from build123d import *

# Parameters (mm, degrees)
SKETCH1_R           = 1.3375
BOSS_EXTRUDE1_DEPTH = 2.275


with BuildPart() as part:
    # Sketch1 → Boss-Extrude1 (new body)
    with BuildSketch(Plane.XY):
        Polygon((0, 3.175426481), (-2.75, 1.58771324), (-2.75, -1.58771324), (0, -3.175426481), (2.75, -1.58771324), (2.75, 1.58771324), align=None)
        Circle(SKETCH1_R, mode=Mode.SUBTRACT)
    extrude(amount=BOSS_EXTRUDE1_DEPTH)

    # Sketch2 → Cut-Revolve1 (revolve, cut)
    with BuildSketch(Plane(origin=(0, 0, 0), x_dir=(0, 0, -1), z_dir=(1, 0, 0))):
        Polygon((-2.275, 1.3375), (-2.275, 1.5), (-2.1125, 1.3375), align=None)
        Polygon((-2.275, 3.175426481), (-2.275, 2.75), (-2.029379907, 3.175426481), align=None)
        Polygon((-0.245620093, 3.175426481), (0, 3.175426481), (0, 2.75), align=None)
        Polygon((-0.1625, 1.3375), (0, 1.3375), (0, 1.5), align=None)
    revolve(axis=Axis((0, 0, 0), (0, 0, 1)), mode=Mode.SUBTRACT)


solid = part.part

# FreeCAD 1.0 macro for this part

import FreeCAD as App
import Part
import Sketcher
from FreeCAD import Vector
Q = App.Units.Quantity

doc = App.newDocument("Part")
params = doc.addObject("Spreadsheet::Sheet", "Params")
for row, (alias, value) in enumerate([
    ("pad1_length", "2.275 mm"),
    ("groove_angle", "360 deg"),
], start=1):
    params.set(f"A{row}", alias)
    params.set(f"B{row}", "=" + value)
    params.setAlias(f"B{row}", alias)

body = doc.addObject("PartDesign::Body", "Body")

# Sketch on XY plane
sketch1 = doc.addObject("Sketcher::SketchObject", "Sketch")
body.addObject(sketch1)
sketch1.AttachmentSupport = (doc.XY_Plane, [""])
sketch1.MapMode = "FlatFace"
sketch1.addGeometry([
    Part.LineSegment(Vector(0, 3.2, 0), Vector(-2.8, 1.6, 0)),  # 0
    Part.LineSegment(Vector(-2.8, 1.6, 0), Vector(-2.8, -1.6, 0)),  # 1
    Part.LineSegment(Vector(-2.8, -1.6, 0), Vector(0, -3.2, 0)),  # 2
    Part.LineSegment(Vector(0, -3.2, 0), Vector(2.8, -1.6, 0)),  # 3
    Part.LineSegment(Vector(2.8, -1.6, 0), Vector(2.8, 1.6, 0)),  # 4
    Part.LineSegment(Vector(2.8, 1.6, 0), Vector(0, 3.2, 0)),  # 5
    Part.Circle(Vector(0, 0, 0), Vector(0, 0, 1), 1.3),  # 6
], False)
sketch1.addConstraint([
    Sketcher.Constraint("Coincident", 0, 2, 1, 1),
    Sketcher.Constraint("Coincident", 1, 2, 2, 1),
    Sketcher.Constraint("Coincident", 2, 2, 3, 1),
    Sketcher.Constraint("Coincident", 3, 2, 4, 1),
    Sketcher.Constraint("Coincident", 4, 2, 5, 1),
    Sketcher.Constraint("Coincident", 5, 2, 0, 1),
    Sketcher.Constraint("Vertical", 1),
    Sketcher.Constraint("Vertical", 4),
    Sketcher.Constraint("Coincident", 6, 3, -1, 1),
    Sketcher.Constraint("Symmetric", 0, 2, 3, 2, -1, 1),
    Sketcher.Constraint("Symmetric", 2, 2, 5, 2, -1, 1),
    Sketcher.Constraint("PointOnObject", 2, 2, -2),
    Sketcher.Constraint("Parallel", 2, 5),
    Sketcher.Constraint("Horizontal", 1, 2, 3, 2),
    Sketcher.Constraint("Angle", 0, Q("-150 deg")),
    Sketcher.Constraint("Diameter", 6, 2.675),
    Sketcher.Constraint("DistanceX", 1, 2, 3, 2, 5.5),
    Sketcher.Constraint("DistanceY", 1, 2, 1, 1, 3.175426),
])
pad1 = doc.addObject("PartDesign::Pad", "Pad")
body.addObject(pad1)
pad1.Profile = sketch1
pad1.setExpression("Length", "Params.pad1_length")

# Sketch on YZ plane
sketch2 = doc.addObject("Sketcher::SketchObject", "Sketch001")
body.addObject(sketch2)
sketch2.AttachmentSupport = (doc.YZ_Plane, [""])
sketch2.MapMode = "FlatFace"
sketch2.addGeometry([
    Part.LineSegment(Vector(1.5, 2.27, 0), Vector(1.34, 2.27, 0)),  # 0
    Part.LineSegment(Vector(1.34, 2.27, 0), Vector(1.34, 2.11, 0)),  # 1
    Part.LineSegment(Vector(1.34, 2.11, 0), Vector(1.5, 2.27, 0)),  # 2
    Part.LineSegment(Vector(3.18, 2.27, 0), Vector(2.75, 2.27, 0)),  # 3
    Part.LineSegment(Vector(2.75, 2.27, 0), Vector(3.18, 2.03, 0)),  # 4
    Part.LineSegment(Vector(3.18, 2.03, 0), Vector(3.18, 2.27, 0)),  # 5
    Part.LineSegment(Vector(3.18, 0, 0), Vector(3.18, 0.25, 0)),  # 6
    Part.LineSegment(Vector(3.18, 0.25, 0), Vector(2.75, 0, 0)),  # 7
    Part.LineSegment(Vector(2.75, 0, 0), Vector(3.18, 0, 0)),  # 8
    Part.LineSegment(Vector(1.34, 0.16, 0), Vector(1.34, 0, 0)),  # 9
    Part.LineSegment(Vector(1.34, 0, 0), Vector(1.5, 0, 0)),  # 10
    Part.LineSegment(Vector(1.5, 0, 0), Vector(1.34, 0.16, 0)),  # 11
], False)
sketch2.addConstraint([
    Sketcher.Constraint("Coincident", 0, 2, 1, 1),
    Sketcher.Constraint("Coincident", 1, 2, 2, 1),
    Sketcher.Constraint("Coincident", 2, 2, 0, 1),
    Sketcher.Constraint("Coincident", 3, 2, 4, 1),
    Sketcher.Constraint("Coincident", 4, 2, 5, 1),
    Sketcher.Constraint("Coincident", 5, 2, 3, 1),
    Sketcher.Constraint("Coincident", 6, 2, 7, 1),
    Sketcher.Constraint("Coincident", 7, 2, 8, 1),
    Sketcher.Constraint("Coincident", 8, 2, 6, 1),
    Sketcher.Constraint("Coincident", 9, 2, 10, 1),
    Sketcher.Constraint("Coincident", 10, 2, 11, 1),
    Sketcher.Constraint("Coincident", 11, 2, 9, 1),
    Sketcher.Constraint("Horizontal", 0),
    Sketcher.Constraint("Vertical", 1),
    Sketcher.Constraint("Horizontal", 3),
    Sketcher.Constraint("Vertical", 5),
    Sketcher.Constraint("Vertical", 6),
    Sketcher.Constraint("Horizontal", 8),
    Sketcher.Constraint("Vertical", 9),
    Sketcher.Constraint("Horizontal", 10),
    Sketcher.Constraint("PointOnObject", 7, 2, -1),
    Sketcher.Constraint("PointOnObject", 9, 2, -1),
    Sketcher.Constraint("Perpendicular", 2, 11),
    Sketcher.Constraint("Horizontal", 2, 2, 3, 2),
    Sketcher.Constraint("Vertical", 5, 2, 6, 2),
    Sketcher.Constraint("Vertical", 3, 2, 7, 2),
    Sketcher.Constraint("Vertical", 1, 2, 9, 2),
    Sketcher.Constraint("Vertical", 2, 2, 10, 2),
    Sketcher.Constraint("Equal", 10, 1),
    Sketcher.Constraint("Equal", 5, 6),
    Sketcher.Constraint("Angle", 4, Q("-30 deg")),
    Sketcher.Constraint("DistanceX", -1, 1, 2, 2, 1.5),
    Sketcher.Constraint("DistanceX", -1, 1, 3, 2, 2.75),
    Sketcher.Constraint("DistanceX", 0, 2, 0, 1, 0.1625),
    Sketcher.Constraint("DistanceY", -1, 1, 0, 2, 2.275),
    Sketcher.Constraint("DistanceY", 5, 1, 5, 2, 0.24562),
])
groove = doc.addObject("PartDesign::Groove", "Groove")
body.addObject(groove)
groove.Profile = sketch2
groove.ReferenceAxis = (sketch2, ["V_Axis"])
groove.setExpression("Angle", "Params.groove_angle")

doc.recompute()
